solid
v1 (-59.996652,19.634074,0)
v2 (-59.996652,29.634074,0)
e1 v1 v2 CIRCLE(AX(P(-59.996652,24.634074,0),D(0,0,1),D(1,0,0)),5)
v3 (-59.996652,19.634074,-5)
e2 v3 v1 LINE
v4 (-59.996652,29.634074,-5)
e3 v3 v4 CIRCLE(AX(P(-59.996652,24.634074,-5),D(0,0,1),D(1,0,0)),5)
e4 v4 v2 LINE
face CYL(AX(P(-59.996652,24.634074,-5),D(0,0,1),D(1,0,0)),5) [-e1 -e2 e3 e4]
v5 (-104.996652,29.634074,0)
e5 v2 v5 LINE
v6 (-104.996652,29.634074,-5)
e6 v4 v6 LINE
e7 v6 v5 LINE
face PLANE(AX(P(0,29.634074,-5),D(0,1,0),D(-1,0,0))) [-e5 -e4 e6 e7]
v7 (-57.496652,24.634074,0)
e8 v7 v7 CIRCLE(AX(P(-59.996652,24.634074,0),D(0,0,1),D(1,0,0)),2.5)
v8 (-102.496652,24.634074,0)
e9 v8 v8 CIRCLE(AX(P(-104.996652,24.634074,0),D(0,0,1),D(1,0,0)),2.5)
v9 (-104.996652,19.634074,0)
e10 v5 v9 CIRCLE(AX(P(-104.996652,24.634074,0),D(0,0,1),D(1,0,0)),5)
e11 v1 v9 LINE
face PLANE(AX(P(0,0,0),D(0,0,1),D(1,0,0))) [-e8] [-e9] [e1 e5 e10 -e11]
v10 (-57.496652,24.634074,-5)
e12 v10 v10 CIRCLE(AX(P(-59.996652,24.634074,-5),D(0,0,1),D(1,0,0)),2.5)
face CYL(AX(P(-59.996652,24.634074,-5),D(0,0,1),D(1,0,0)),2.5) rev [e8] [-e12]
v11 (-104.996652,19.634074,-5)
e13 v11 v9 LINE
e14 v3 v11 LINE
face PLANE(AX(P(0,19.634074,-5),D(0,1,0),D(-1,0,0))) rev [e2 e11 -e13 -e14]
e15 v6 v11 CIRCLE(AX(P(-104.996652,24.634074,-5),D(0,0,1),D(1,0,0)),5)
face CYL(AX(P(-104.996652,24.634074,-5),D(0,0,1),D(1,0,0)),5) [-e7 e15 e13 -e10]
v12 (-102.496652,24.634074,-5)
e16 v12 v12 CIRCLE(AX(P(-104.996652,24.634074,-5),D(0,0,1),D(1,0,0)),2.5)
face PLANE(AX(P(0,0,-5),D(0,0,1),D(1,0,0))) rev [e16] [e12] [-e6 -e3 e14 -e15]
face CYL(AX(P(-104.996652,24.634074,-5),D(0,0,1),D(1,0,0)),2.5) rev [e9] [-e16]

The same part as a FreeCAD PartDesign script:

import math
import FreeCAD as App
import Part
import Sketcher

V = App.Vector

doc = App.newDocument("Part")
body = doc.addObject("PartDesign::Body", "Body")

# Sketch on XY plane
sketch1 = body.newObject("Sketcher::SketchObject", "Sketch")
sketch1.AttachmentSupport = (doc.getObject("XY_Plane"), [""])
sketch1.MapMode = "FlatFace"
sketch1.addGeometry([
    Part.LineSegment(V(-105, 19.6, 0), V(-60, 19.6, 0)),  # 0
    Part.ArcOfCircle(Part.Circle(V(-60, 24.6, 0), V(0, 0, 1), 5), math.radians(-90), math.radians(90)),  # 1
    Part.LineSegment(V(-60, 29.6, 0), V(-105, 29.6, 0)),  # 2
    Part.ArcOfCircle(Part.Circle(V(-105, 24.6, 0), V(0, 0, 1), 5), math.radians(90), math.radians(270)),  # 3
    Part.Circle(V(-60, 24.6, 0), V(0, 0, 1), 2.5),  # 4
    Part.Circle(V(-105, 24.6, 0), V(0, 0, 1), 2.5),  # 5
], False)
sketch1.addConstraint([
    Sketcher.Constraint("Tangent", 0, 2, 1, 1),
    Sketcher.Constraint("Tangent", 1, 2, 2, 1),
    Sketcher.Constraint("Tangent", 2, 2, 3, 1),
    Sketcher.Constraint("Tangent", 3, 2, 0, 1),
    Sketcher.Constraint("Horizontal", 0),
    Sketcher.Constraint("Horizontal", 2),
    Sketcher.Constraint("Coincident", 4, 3, 1, 3),
    Sketcher.Constraint("Coincident", 5, 3, 3, 3),
    Sketcher.Constraint("Equal", 4, 5),
    Sketcher.Constraint("Diameter", 4, 5.0),
    Sketcher.Constraint("Radius", 1, 5.0),
    Sketcher.Constraint("DistanceX", 0, 1, 0, 2, 45.0),
    Sketcher.Constraint("DistanceX", 1, 3, -1, 1, 59.996652),
    Sketcher.Constraint("DistanceY", -1, 1, 1, 3, 24.634074),
])
pad1 = body.newObject("PartDesign::Pad", "Pad")
pad1.Profile = sketch1
pad1.Length = 5
pad1.Reversed = True

doc.recompute()
